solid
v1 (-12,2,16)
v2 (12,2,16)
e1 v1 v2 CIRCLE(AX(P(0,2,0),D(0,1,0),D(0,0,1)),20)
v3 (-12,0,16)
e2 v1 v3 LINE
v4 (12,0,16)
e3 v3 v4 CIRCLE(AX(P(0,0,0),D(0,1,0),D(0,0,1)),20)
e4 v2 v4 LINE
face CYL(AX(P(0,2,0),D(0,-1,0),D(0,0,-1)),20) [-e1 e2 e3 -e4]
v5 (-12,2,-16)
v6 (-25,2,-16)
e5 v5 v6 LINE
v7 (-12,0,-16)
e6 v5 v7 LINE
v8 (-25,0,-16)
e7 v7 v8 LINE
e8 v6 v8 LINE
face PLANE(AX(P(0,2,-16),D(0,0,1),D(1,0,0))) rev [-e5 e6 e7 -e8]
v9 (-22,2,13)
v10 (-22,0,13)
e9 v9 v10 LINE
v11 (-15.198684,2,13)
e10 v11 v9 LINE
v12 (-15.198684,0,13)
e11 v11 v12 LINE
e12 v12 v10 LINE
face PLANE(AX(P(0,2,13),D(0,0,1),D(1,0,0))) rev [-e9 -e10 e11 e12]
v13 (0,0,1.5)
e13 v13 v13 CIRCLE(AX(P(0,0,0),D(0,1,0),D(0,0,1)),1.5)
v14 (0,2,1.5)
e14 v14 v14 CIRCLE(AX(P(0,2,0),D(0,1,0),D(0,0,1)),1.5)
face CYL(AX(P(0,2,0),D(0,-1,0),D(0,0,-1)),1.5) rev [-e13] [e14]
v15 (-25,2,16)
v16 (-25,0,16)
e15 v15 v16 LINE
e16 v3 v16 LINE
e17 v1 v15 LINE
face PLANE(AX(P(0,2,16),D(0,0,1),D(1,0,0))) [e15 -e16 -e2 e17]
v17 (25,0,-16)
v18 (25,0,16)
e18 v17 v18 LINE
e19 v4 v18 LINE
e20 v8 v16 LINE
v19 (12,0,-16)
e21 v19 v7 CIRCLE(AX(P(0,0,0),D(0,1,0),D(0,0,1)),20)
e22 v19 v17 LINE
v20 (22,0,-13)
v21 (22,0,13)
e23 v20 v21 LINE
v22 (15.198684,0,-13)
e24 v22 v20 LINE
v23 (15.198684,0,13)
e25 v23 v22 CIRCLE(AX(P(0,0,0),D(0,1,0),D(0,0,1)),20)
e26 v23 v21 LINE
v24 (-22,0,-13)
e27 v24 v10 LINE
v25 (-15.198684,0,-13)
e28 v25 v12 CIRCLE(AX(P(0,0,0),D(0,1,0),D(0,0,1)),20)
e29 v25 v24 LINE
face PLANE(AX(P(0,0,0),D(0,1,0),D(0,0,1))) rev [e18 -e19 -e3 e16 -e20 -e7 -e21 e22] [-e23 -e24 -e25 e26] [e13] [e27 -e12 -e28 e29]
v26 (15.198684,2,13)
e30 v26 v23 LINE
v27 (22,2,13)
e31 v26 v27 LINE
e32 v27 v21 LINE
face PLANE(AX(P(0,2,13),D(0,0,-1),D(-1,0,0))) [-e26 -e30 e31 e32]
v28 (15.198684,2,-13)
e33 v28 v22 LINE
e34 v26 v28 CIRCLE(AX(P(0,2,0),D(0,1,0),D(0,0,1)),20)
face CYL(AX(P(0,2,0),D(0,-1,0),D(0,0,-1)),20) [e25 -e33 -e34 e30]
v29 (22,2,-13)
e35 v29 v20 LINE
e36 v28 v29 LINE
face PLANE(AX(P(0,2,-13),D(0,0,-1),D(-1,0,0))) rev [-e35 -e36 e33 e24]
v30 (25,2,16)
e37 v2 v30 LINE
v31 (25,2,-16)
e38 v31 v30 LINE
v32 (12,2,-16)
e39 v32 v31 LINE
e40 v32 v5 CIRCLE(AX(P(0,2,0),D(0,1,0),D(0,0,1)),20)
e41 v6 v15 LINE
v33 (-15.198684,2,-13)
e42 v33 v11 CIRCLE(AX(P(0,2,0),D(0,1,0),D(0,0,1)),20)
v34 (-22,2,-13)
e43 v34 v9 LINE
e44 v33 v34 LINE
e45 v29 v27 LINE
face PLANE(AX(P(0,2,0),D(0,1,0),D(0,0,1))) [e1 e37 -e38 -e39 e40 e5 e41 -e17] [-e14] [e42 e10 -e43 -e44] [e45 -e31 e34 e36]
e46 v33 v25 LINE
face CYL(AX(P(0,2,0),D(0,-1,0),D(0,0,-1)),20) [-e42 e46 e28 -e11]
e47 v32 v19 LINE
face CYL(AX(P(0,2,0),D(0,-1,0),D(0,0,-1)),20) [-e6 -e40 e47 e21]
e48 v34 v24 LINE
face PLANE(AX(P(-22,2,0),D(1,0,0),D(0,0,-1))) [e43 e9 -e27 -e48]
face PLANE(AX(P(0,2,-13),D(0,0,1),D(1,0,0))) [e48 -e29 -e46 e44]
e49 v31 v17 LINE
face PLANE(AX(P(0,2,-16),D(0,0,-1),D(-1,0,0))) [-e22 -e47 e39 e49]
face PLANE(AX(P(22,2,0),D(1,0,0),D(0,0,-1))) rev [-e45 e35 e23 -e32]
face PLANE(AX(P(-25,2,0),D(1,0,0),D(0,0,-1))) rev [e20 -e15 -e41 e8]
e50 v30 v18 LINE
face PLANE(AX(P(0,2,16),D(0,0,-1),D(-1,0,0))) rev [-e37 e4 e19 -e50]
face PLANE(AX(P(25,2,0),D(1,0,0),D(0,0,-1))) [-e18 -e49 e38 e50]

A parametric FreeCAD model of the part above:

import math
import FreeCAD as App
import Part
import Sketcher
Q = App.Units.Quantity

doc = App.newDocument("Part")
body = doc.addObject("PartDesign::Body", "Body")

sketch1 = doc.addObject("Sketcher::SketchObject", "Sketch")
body.addObject(sketch1)
sketch1.AttachmentSupport = (doc.XZ_Plane, [""])
sketch1.MapMode = "FlatFace"
sketch1.addGeometry(Part.LineSegment(App.Vector(-25, 16, 0), App.Vector(-12, 16, 0)), False)
sketch1.addGeometry(Part.ArcOfCircle(Part.Circle(App.Vector(0, 0, 0), App.Vector(0, 0, 1), 20), math.radians(53.130102), math.radians(126.869898)), False)
sketch1.addGeometry(Part.LineSegment(App.Vector(12, 16, 0), App.Vector(25, 16, 0)), False)
sketch1.addGeometry(Part.LineSegment(App.Vector(25, 16, 0), App.Vector(25, -16, 0)), False)
sketch1.addGeometry(Part.LineSegment(App.Vector(25, -16, 0), App.Vector(12, -16, 0)), False)
sketch1.addGeometry(Part.ArcOfCircle(Part.Circle(App.Vector(0, 0, 0), App.Vector(0, 0, 1), 20), math.radians(-126.869898), math.radians(-53.130102)), False)
sketch1.addGeometry(Part.LineSegment(App.Vector(-12, -16, 0), App.Vector(-25, -16, 0)), False)
sketch1.addGeometry(Part.LineSegment(App.Vector(-25, -16, 0), App.Vector(-25, 16, 0)), False)
sketch1.addGeometry(Part.LineSegment(App.Vector(-22, 13, 0), App.Vector(-22, -13, 0)), False)
sketch1.addGeometry(Part.LineSegment(App.Vector(-22, -13, 0), App.Vector(-15.198684, -13, 0)), False)
sketch1.addGeometry(Part.ArcOfCircle(Part.Circle(App.Vector(0, 0, 0), App.Vector(0, 0, 1), 20), math.radians(139.458398), math.radians(220.541602)), False)
sketch1.addGeometry(Part.LineSegment(App.Vector(-15.198684, 13, 0), App.Vector(-22, 13, 0)), False)
sketch1.addGeometry(Part.Circle(App.Vector(0, 0, 0), App.Vector(0, 0, 1), 1.5), False)
sketch1.addGeometry(Part.LineSegment(App.Vector(22, 13, 0), App.Vector(15.198684, 13, 0)), False)
sketch1.addGeometry(Part.ArcOfCircle(Part.Circle(App.Vector(0, 0, 0), App.Vector(0, 0, 1), 20), math.radians(-40.541602), math.radians(40.541602)), False)
sketch1.addGeometry(Part.LineSegment(App.Vector(15.198684, -13, 0), App.Vector(22, -13, 0)), False)
sketch1.addGeometry(Part.LineSegment(App.Vector(22, -13, 0), App.Vector(22, 13, 0)), False)
sketch1.addConstraint(Sketcher.Constraint("Coincident", 0, 2, 1, 2))
sketch1.addConstraint(Sketcher.Constraint("Coincident", 1, 1, 2, 1))
sketch1.addConstraint(Sketcher.Constraint("Coincident", 2, 2, 3, 1))
sketch1.addConstraint(Sketcher.Constraint("Coincident", 3, 2, 4, 1))
sketch1.addConstraint(Sketcher.Constraint("Coincident", 4, 2, 5, 2))
sketch1.addConstraint(Sketcher.Constraint("Coincident", 5, 1, 6, 1))
sketch1.addConstraint(Sketcher.Constraint("Coincident", 6, 2, 7, 1))
sketch1.addConstraint(Sketcher.Constraint("Coincident", 7, 2, 0, 1))
sketch1.addConstraint(Sketcher.Constraint("Coincident", 8, 2, 9, 1))
sketch1.addConstraint(Sketcher.Constraint("Coincident", 9, 2, 10, 2))
sketch1.addConstraint(Sketcher.Constraint("Coincident", 10, 1, 11, 1))
sketch1.addConstraint(Sketcher.Constraint("Coincident", 11, 2, 8, 1))
sketch1.addConstraint(Sketcher.Constraint("Coincident", 13, 2, 14, 2))
sketch1.addConstraint(Sketcher.Constraint("Coincident", 14, 1, 15, 1))
sketch1.addConstraint(Sketcher.Constraint("Coincident", 15, 2, 16, 1))
sketch1.addConstraint(Sketcher.Constraint("Coincident", 16, 2, 13, 1))
sketch1.addConstraint(Sketcher.Constraint("Horizontal", 0))
sketch1.addConstraint(Sketcher.Constraint("Horizontal", 2))
sketch1.addConstraint(Sketcher.Constraint("Vertical", 3))
sketch1.addConstraint(Sketcher.Constraint("Horizontal", 4))
sketch1.addConstraint(Sketcher.Constraint("Horizontal", 6))
sketch1.addConstraint(Sketcher.Constraint("Vertical", 7))
sketch1.addConstraint(Sketcher.Constraint("Vertical", 8))
sketch1.addConstraint(Sketcher.Constraint("Horizontal", 9))
sketch1.addConstraint(Sketcher.Constraint("Horizontal", 11))
sketch1.addConstraint(Sketcher.Constraint("Horizontal", 13))
sketch1.addConstraint(Sketcher.Constraint("Horizontal", 15))
sketch1.addConstraint(Sketcher.Constraint("Vertical", 16))
sketch1.addConstraint(Sketcher.Constraint("Coincident", 1, 3, -1, 1))
sketch1.addConstraint(Sketcher.Constraint("Coincident", 5, 3, -1, 1))
sketch1.addConstraint(Sketcher.Constraint("Coincident", 10, 3, -1, 1))
sketch1.addConstraint(Sketcher.Constraint("Coincident", 12, 3, -1, 1))
sketch1.addConstraint(Sketcher.Constraint("Coincident", 14, 3, -1, 1))
sketch1.addConstraint(Sketcher.Constraint("Equal", 1, 5))
sketch1.addConstraint(Sketcher.Constraint("Equal", 5, 10))
sketch1.addConstraint(Sketcher.Constraint("Equal", 10, 14))
sketch1.addConstraint(Sketcher.Constraint("Symmetric", 2, 2, 6, 2, -1, 1))
sketch1.addConstraint(Sketcher.Constraint("Symmetric", 11, 2, 15, 2, -1, 1))
sketch1.addConstraint(Sketcher.Constraint("Horizontal", 0, 2, 1, 1))
sketch1.addConstraint(Sketcher.Constraint("Horizontal", 4, 2, 5, 1))
sketch1.addConstraint(Sketcher.Constraint("Horizontal", 11, 2, 13, 2))
sketch1.addConstraint(Sketcher.Constraint("Horizontal", 9, 2, 14, 1))
sketch1.addConstraint(Sketcher.Constraint("Diameter", 12, Q("3 mm")))
sketch1.addConstraint(Sketcher.Constraint("Radius", 1, Q("20 mm")))
sketch1.addConstraint(Sketcher.Constraint("DistanceX", 0, 1, 0, 2, Q("13 mm")))
sketch1.addConstraint(Sketcher.Constraint("DistanceY", 3, 2, 3, 1, Q("32 mm")))
sketch1.addConstraint(Sketcher.Constraint("DistanceY", 8, 2, 8, 1, Q("26 mm")))
sketch1.addConstraint(Sketcher.Constraint("DistanceX", 8, 2, -1, 1, Q("22 mm")))
pad1 = doc.addObject("PartDesign::Pad", "Pad")
body.addObject(pad1)
pad1.Profile = sketch1
pad1.Length = 2
pad1.Reversed = True

doc.recompute()
